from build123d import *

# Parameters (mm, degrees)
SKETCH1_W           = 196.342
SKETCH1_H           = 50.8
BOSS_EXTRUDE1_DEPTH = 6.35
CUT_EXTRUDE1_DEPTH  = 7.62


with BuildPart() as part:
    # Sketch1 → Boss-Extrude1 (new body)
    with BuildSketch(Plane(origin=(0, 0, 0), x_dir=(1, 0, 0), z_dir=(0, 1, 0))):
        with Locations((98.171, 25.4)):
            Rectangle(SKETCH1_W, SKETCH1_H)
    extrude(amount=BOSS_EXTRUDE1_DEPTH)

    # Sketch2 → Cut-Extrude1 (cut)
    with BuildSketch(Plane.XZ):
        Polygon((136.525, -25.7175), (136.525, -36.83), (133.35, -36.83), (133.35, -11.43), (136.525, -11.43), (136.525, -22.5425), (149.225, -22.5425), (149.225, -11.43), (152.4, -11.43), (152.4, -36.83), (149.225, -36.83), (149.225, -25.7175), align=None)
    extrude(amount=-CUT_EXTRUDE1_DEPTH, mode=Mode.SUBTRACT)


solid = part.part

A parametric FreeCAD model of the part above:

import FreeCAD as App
import Part
import Sketcher
Q = App.Units.Quantity

doc = App.newDocument("Part")
body = doc.addObject("PartDesign::Body", "Body")

sketch1 = body.newObject("Sketcher::SketchObject", "Sketch")
sketch1.AttachmentSupport = (doc.getObject("XZ_Plane"), [""])
sketch1.MapMode = "FlatFace"
sketch1.addGeometry([
    Part.LineSegment(App.Vector(0, -51, 0), App.Vector(0, 0, 0)),
    Part.LineSegment(App.Vector(0, 0, 0), App.Vector(196, 0, 0)),
    Part.LineSegment(App.Vector(196, 0, 0), App.Vector(196, -51, 0)),
    Part.LineSegment(App.Vector(196, -51, 0), App.Vector(0, -51, 0)),
], False)
sketch1.addConstraint([
    Sketcher.Constraint("Coincident", 0, 2, 1, 1),
    Sketcher.Constraint("Coincident", 1, 2, 2, 1),
    Sketcher.Constraint("Coincident", 2, 2, 3, 1),
    Sketcher.Constraint("Coincident", 3, 2, 0, 1),
    Sketcher.Constraint("Vertical", 0),
    Sketcher.Constraint("Horizontal", 1),
    Sketcher.Constraint("Vertical", 2),
    Sketcher.Constraint("Horizontal", 3),
    Sketcher.Constraint("Coincident", 0, 2, -1, 1),
    Sketcher.Constraint("DistanceY", 0, 1, 0, 2, Q("2 in")),
    Sketcher.Constraint("DistanceX", 1, 1, 1, 2, Q("7.73 in")),
])
pad1 = body.newObject("PartDesign::Pad", "Pad")
pad1.Profile = sketch1
pad1.Length = Q("0.25 in")
pad1.Reversed = True

sketch2 = body.newObject("Sketcher::SketchObject", "Sketch001")
sketch2.AttachmentSupport = (doc.getObject("XZ_Plane"), [""])
sketch2.MapMode = "FlatFace"
sketch2.addGeometry([
    Part.LineSegment(App.Vector(136.5, -36.8, 0), App.Vector(136.5, -25.7, 0)),
    Part.LineSegment(App.Vector(136.5, -25.7, 0), App.Vector(149.2, -25.7, 0)),
    Part.LineSegment(App.Vector(149.2, -25.7, 0), App.Vector(149.2, -36.8, 0)),
    Part.LineSegment(App.Vector(149.2, -36.8, 0), App.Vector(152.4, -36.8, 0)),
    Part.LineSegment(App.Vector(152.4, -36.8, 0), App.Vector(152.4, -11.4, 0)),
    Part.LineSegment(App.Vector(152.4, -11.4, 0), App.Vector(149.2, -11.4, 0)),
    Part.LineSegment(App.Vector(149.2, -11.4, 0), App.Vector(149.2, -22.5, 0)),
    Part.LineSegment(App.Vector(149.2, -22.5, 0), App.Vector(136.5, -22.5, 0)),
    Part.LineSegment(App.Vector(136.5, -22.5, 0), App.Vector(136.5, -11.4, 0)),
    Part.LineSegment(App.Vector(136.5, -11.4, 0), App.Vector(133.3, -11.4, 0)),
    Part.LineSegment(App.Vector(133.3, -11.4, 0), App.Vector(133.3, -36.8, 0)),
    Part.LineSegment(App.Vector(133.3, -36.8, 0), App.Vector(136.5, -36.8, 0)),
], False)
sketch2.addConstraint([
    Sketcher.Constraint("Coincident", 0, 2, 1, 1),
    Sketcher.Constraint("Coincident", 1, 2, 2, 1),
    Sketcher.Constraint("Coincident", 2, 2, 3, 1),
    Sketcher.Constraint("Coincident", 3, 2, 4, 1),
    Sketcher.Constraint("Coincident", 4, 2, 5, 1),
    Sketcher.Constraint("Coincident", 5, 2, 6, 1),
    Sketcher.Constraint("Coincident", 6, 2, 7, 1),
    Sketcher.Constraint("Coincident", 7, 2, 8, 1),
    Sketcher.Constraint("Coincident", 8, 2, 9, 1),
    Sketcher.Constraint("Coincident", 9, 2, 10, 1),
    Sketcher.Constraint("Coincident", 10, 2, 11, 1),
    Sketcher.Constraint("Coincident", 11, 2, 0, 1),
    Sketcher.Constraint("Vertical", 0),
    Sketcher.Constraint("Horizontal", 1),
    Sketcher.Constraint("Vertical", 2),
    Sketcher.Constraint("Horizontal", 3),
    Sketcher.Constraint("Vertical", 4),
    Sketcher.Constraint("Horizontal", 5),
    Sketcher.Constraint("Vertical", 6),
    Sketcher.Constraint("Horizontal", 7),
    Sketcher.Constraint("Vertical", 8),
    Sketcher.Constraint("Horizontal", 9),
    Sketcher.Constraint("Vertical", 10),
    Sketcher.Constraint("Horizontal", 11),
    Sketcher.Constraint("Horizontal", 5, 2, 8, 2),
    Sketcher.Constraint("Horizontal", 3, 2, 10, 2),
    Sketcher.Constraint("Vertical", 2, 2, 5, 2),
    Sketcher.Constraint("Vertical", 0, 2, 7, 2),
    Sketcher.Constraint("Equal", 5, 9),
    Sketcher.Constraint("Equal", 2, 6),
    Sketcher.Constraint("DistanceY", 4, 1, 4, 2, Q("1 in")),
    Sketcher.Constraint("DistanceX", 1, 1, 1, 2, Q("0.5 in")),
    Sketcher.Constraint("DistanceX", -1, 1, 3, 2, Q("6 in")),
    Sketcher.Constraint("DistanceX", 3, 1, 3, 2, Q("0.125 in")),
    Sketcher.Constraint("DistanceY", 0, 1, 0, 2, Q("0.4375 in")),
    Sketcher.Constraint("DistanceY", 2, 2, -1, 1, Q("1.45 in")),
])
pocket1 = body.newObject("PartDesign::Pocket", "Pocket")
pocket1.Profile = sketch2
pocket1.Length = Q("0.3 in")

doc.recompute()
